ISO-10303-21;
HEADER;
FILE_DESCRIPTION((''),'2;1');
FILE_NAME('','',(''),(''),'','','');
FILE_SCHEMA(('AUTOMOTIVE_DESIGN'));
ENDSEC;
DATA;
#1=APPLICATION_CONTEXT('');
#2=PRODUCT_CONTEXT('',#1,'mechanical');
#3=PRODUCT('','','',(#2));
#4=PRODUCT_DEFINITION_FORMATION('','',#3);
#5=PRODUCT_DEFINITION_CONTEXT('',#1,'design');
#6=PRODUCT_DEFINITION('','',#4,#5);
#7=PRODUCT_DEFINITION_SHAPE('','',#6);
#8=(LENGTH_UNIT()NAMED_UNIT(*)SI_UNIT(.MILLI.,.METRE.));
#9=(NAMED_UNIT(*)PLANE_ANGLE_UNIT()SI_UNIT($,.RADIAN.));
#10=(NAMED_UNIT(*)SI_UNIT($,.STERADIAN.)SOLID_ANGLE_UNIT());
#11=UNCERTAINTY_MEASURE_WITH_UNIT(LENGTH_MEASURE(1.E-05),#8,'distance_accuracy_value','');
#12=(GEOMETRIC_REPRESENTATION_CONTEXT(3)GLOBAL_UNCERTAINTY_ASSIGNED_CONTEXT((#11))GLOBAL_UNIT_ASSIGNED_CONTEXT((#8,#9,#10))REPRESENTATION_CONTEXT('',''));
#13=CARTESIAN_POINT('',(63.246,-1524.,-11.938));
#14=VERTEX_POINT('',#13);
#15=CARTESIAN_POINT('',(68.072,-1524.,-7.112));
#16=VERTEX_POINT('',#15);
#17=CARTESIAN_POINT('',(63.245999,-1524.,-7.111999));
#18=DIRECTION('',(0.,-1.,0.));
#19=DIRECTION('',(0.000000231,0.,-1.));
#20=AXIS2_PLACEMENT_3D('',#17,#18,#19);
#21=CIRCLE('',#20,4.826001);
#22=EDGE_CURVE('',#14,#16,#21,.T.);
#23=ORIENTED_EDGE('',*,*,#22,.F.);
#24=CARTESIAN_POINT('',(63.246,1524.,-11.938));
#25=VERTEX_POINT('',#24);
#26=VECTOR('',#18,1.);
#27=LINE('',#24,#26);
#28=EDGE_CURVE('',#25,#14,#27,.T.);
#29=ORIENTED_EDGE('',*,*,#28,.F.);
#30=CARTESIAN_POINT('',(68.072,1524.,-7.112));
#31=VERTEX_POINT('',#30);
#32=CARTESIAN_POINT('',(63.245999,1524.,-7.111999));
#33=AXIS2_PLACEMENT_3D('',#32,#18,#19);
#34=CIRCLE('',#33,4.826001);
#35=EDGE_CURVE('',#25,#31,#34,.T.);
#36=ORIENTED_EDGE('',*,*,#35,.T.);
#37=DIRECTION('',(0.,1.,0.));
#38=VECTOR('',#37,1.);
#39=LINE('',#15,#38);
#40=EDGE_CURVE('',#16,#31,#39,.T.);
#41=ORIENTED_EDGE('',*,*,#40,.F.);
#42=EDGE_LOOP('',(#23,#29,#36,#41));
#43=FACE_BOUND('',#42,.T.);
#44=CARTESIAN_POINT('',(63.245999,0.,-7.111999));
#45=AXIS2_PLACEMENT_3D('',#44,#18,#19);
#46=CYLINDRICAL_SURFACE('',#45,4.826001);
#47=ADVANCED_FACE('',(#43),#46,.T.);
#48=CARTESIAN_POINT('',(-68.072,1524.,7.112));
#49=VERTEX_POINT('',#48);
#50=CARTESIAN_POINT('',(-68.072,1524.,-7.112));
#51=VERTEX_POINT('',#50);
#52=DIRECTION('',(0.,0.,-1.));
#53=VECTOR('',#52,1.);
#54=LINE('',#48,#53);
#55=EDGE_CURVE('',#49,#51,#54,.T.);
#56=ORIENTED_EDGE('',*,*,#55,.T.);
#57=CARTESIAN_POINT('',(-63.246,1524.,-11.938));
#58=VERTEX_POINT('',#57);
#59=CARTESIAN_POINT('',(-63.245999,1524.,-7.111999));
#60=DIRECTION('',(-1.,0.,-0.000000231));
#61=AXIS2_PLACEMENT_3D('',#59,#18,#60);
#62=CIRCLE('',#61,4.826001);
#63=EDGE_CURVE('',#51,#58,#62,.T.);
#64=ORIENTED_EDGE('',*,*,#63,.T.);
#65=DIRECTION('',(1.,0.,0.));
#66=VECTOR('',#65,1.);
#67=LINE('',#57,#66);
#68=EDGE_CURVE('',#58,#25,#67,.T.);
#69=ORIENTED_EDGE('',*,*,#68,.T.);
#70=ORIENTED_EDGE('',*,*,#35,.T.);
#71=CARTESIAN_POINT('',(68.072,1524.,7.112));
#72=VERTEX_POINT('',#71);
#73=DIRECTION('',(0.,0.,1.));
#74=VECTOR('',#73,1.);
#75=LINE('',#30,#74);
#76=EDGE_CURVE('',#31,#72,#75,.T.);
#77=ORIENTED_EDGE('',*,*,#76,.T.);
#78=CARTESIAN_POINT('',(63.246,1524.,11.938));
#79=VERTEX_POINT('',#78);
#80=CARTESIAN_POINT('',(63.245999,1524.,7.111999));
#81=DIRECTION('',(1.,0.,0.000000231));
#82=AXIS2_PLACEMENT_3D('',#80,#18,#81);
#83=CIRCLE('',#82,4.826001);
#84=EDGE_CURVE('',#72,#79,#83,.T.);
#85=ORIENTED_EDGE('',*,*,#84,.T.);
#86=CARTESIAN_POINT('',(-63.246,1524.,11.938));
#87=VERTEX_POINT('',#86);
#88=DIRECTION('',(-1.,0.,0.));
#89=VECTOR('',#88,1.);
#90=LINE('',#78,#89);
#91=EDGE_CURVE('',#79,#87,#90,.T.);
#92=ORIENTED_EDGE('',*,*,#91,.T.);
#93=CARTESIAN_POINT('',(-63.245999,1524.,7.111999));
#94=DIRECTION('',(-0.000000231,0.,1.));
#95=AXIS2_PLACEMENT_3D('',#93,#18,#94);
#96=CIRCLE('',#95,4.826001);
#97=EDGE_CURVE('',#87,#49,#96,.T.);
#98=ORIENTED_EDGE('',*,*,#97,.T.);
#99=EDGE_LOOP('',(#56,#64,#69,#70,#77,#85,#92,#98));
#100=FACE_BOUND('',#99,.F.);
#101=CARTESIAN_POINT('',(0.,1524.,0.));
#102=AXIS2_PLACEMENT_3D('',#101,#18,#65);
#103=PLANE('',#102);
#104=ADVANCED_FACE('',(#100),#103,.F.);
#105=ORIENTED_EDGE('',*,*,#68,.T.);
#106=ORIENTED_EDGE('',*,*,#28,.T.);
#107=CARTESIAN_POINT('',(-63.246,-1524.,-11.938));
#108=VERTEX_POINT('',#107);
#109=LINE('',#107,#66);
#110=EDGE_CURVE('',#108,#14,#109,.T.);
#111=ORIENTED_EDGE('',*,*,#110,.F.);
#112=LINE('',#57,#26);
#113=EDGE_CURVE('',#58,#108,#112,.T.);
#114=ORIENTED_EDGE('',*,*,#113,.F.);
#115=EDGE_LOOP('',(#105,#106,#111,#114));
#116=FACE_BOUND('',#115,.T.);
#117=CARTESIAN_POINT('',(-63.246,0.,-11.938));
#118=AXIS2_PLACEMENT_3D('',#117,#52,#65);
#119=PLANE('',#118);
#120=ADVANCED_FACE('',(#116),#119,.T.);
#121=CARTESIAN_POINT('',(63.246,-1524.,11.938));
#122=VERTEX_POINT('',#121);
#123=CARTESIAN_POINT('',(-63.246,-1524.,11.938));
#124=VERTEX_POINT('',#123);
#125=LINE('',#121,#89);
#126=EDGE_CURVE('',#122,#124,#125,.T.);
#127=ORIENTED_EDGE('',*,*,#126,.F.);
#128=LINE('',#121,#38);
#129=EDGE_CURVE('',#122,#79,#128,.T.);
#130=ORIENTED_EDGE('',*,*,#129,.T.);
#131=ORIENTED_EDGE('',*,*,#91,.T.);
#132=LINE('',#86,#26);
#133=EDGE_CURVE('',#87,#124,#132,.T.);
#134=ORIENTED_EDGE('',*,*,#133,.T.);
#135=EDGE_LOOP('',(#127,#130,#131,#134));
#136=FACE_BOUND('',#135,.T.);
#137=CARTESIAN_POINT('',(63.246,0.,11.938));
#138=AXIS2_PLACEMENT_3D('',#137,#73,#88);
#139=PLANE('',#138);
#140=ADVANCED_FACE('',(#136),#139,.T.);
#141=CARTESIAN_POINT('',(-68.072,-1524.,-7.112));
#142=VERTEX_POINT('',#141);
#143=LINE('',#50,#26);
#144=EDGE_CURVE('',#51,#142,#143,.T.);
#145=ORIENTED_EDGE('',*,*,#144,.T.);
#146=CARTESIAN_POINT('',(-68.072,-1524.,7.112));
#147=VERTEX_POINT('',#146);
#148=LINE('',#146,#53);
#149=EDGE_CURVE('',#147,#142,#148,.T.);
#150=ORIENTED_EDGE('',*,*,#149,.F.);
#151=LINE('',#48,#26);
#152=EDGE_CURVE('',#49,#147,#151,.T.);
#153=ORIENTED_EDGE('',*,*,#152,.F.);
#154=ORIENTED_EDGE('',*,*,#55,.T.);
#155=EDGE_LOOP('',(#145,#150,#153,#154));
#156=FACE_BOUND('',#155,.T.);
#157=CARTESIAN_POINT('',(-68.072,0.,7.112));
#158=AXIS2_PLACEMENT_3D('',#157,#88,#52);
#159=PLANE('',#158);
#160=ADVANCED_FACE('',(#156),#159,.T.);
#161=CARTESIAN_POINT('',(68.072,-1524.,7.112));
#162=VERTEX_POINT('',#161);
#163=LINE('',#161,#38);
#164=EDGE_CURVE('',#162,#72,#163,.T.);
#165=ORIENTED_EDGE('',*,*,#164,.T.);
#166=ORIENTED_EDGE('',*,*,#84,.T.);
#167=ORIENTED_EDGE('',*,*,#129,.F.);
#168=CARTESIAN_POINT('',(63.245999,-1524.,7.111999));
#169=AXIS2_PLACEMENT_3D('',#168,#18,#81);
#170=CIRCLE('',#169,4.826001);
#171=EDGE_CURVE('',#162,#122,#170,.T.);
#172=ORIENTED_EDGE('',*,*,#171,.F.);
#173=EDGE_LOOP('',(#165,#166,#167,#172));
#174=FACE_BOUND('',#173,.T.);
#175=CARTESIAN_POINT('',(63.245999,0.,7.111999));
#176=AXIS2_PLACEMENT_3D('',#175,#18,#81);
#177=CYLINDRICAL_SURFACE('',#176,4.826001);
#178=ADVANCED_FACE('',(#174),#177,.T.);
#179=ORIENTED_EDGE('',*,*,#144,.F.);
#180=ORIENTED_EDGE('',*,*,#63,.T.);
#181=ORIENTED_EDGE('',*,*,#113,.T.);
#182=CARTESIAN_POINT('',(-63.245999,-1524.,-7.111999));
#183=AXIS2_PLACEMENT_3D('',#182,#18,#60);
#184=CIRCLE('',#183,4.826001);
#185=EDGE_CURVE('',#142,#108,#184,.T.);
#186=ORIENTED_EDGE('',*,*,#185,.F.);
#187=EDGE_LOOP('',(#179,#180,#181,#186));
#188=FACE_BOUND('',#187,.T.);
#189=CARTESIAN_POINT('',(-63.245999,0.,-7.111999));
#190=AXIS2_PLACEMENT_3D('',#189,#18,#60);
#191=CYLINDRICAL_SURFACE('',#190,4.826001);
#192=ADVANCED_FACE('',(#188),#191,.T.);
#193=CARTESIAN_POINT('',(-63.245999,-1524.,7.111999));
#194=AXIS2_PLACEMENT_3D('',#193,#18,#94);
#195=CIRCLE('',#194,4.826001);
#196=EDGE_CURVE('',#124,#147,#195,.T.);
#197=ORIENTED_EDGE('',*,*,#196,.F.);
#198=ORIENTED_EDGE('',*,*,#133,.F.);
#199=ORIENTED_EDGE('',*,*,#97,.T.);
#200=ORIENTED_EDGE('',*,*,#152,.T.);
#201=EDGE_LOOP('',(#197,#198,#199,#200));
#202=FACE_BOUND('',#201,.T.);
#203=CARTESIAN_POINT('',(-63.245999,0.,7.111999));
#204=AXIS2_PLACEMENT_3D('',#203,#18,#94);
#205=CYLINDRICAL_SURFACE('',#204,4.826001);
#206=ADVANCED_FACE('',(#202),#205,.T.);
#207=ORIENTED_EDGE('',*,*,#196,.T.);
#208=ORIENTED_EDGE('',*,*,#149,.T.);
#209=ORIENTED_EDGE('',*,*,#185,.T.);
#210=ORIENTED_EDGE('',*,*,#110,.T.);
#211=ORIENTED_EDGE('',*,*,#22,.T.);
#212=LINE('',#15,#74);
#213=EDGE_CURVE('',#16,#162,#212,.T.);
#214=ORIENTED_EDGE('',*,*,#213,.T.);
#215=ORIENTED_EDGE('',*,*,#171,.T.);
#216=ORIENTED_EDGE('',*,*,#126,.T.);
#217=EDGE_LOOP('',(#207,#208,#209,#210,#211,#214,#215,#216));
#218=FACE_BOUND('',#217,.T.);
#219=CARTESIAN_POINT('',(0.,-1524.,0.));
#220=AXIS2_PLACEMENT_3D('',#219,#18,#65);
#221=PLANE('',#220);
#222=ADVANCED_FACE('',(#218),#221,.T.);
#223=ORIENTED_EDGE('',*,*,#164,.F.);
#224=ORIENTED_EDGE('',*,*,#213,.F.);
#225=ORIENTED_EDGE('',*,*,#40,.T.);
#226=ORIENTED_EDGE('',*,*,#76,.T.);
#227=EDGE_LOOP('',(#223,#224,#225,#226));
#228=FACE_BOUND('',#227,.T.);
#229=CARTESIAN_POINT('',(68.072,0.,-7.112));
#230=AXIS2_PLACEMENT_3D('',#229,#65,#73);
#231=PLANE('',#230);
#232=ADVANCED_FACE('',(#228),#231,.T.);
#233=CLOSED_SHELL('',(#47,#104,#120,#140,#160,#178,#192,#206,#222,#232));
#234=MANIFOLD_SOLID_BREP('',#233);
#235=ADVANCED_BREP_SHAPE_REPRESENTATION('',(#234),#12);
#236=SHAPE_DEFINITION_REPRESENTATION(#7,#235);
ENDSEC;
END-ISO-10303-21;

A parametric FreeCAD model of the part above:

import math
import FreeCAD as App
import Part
import Sketcher

V = App.Vector
Q = App.Units.Quantity

doc = App.newDocument("Part")
body = doc.addObject("PartDesign::Body", "Body")

# Sketch on XZ plane
sketch1 = doc.addObject("Sketcher::SketchObject", "Sketch")
body.addObject(sketch1)
sketch1.AttachmentSupport = (doc.XZ_Plane, [""])
sketch1.MapMode = "FlatFace"
sketch1.addGeometry([
    Part.LineSegment(V(63.246, 11.938, 0), V(-63.246, 11.938, 0)),  # 0
    Part.ArcOfCircle(Part.Circle(V(-63.245999, 7.111999, 0), V(0, 0, 1), 4.826001), math.radians(90.000013), math.radians(179.999987)),  # 1
    Part.LineSegment(V(-68.072, 7.112, 0), V(-68.072, -7.112, 0)),  # 2
    Part.ArcOfCircle(Part.Circle(V(-63.245999, -7.111999, 0), V(0, 0, 1), 4.826001), math.radians(-179.999987), math.radians(-90.000013)),  # 3
    Part.LineSegment(V(-63.246, -11.938, 0), V(63.246, -11.938, 0)),  # 4
    Part.ArcOfCircle(Part.Circle(V(63.245999, -7.111999, 0), V(0, 0, 1), 4.826001), math.radians(-89.999987), math.radians(-0.000013)),  # 5
    Part.LineSegment(V(68.072, -7.112, 0), V(68.072, 7.112, 0)),  # 6
    Part.ArcOfCircle(Part.Circle(V(63.245999, 7.111999, 0), V(0, 0, 1), 4.826001), math.radians(0.000013), math.radians(89.999987)),  # 7
], False)
sketch1.addConstraint([
    Sketcher.Constraint("Tangent", 0, 2, 1, 1),
    Sketcher.Constraint("Tangent", 1, 2, 2, 1),
    Sketcher.Constraint("Tangent", 2, 2, 3, 1),
    Sketcher.Constraint("Tangent", 3, 2, 4, 1),
    Sketcher.Constraint("Tangent", 4, 2, 5, 1),
    Sketcher.Constraint("Tangent", 5, 2, 6, 1),
    Sketcher.Constraint("Tangent", 6, 2, 7, 1),
    Sketcher.Constraint("Tangent", 7, 2, 0, 1),
    Sketcher.Constraint("Horizontal", 0),
    Sketcher.Constraint("Vertical", 2),
    Sketcher.Constraint("Horizontal", 4),
    Sketcher.Constraint("Vertical", 6),
    Sketcher.Constraint("Equal", 1, 3),
    Sketcher.Constraint("Equal", 3, 5),
    Sketcher.Constraint("Equal", 5, 7),
    Sketcher.Constraint("Symmetric", 1, 3, 5, 3, -1, 1),
    Sketcher.Constraint("Radius", 1, Q("0.19 in")),
    Sketcher.Constraint("DistanceX", 0, 2, 0, 1, Q("4.98 in")),
    Sketcher.Constraint("DistanceY", 2, 2, 2, 1, Q("0.56 in")),
])
pad1 = doc.addObject("PartDesign::Pad", "Pad")
body.addObject(pad1)
pad1.Profile = sketch1
pad1.Length = Q("120 in")
pad1.Midplane = True

doc.recompute()
